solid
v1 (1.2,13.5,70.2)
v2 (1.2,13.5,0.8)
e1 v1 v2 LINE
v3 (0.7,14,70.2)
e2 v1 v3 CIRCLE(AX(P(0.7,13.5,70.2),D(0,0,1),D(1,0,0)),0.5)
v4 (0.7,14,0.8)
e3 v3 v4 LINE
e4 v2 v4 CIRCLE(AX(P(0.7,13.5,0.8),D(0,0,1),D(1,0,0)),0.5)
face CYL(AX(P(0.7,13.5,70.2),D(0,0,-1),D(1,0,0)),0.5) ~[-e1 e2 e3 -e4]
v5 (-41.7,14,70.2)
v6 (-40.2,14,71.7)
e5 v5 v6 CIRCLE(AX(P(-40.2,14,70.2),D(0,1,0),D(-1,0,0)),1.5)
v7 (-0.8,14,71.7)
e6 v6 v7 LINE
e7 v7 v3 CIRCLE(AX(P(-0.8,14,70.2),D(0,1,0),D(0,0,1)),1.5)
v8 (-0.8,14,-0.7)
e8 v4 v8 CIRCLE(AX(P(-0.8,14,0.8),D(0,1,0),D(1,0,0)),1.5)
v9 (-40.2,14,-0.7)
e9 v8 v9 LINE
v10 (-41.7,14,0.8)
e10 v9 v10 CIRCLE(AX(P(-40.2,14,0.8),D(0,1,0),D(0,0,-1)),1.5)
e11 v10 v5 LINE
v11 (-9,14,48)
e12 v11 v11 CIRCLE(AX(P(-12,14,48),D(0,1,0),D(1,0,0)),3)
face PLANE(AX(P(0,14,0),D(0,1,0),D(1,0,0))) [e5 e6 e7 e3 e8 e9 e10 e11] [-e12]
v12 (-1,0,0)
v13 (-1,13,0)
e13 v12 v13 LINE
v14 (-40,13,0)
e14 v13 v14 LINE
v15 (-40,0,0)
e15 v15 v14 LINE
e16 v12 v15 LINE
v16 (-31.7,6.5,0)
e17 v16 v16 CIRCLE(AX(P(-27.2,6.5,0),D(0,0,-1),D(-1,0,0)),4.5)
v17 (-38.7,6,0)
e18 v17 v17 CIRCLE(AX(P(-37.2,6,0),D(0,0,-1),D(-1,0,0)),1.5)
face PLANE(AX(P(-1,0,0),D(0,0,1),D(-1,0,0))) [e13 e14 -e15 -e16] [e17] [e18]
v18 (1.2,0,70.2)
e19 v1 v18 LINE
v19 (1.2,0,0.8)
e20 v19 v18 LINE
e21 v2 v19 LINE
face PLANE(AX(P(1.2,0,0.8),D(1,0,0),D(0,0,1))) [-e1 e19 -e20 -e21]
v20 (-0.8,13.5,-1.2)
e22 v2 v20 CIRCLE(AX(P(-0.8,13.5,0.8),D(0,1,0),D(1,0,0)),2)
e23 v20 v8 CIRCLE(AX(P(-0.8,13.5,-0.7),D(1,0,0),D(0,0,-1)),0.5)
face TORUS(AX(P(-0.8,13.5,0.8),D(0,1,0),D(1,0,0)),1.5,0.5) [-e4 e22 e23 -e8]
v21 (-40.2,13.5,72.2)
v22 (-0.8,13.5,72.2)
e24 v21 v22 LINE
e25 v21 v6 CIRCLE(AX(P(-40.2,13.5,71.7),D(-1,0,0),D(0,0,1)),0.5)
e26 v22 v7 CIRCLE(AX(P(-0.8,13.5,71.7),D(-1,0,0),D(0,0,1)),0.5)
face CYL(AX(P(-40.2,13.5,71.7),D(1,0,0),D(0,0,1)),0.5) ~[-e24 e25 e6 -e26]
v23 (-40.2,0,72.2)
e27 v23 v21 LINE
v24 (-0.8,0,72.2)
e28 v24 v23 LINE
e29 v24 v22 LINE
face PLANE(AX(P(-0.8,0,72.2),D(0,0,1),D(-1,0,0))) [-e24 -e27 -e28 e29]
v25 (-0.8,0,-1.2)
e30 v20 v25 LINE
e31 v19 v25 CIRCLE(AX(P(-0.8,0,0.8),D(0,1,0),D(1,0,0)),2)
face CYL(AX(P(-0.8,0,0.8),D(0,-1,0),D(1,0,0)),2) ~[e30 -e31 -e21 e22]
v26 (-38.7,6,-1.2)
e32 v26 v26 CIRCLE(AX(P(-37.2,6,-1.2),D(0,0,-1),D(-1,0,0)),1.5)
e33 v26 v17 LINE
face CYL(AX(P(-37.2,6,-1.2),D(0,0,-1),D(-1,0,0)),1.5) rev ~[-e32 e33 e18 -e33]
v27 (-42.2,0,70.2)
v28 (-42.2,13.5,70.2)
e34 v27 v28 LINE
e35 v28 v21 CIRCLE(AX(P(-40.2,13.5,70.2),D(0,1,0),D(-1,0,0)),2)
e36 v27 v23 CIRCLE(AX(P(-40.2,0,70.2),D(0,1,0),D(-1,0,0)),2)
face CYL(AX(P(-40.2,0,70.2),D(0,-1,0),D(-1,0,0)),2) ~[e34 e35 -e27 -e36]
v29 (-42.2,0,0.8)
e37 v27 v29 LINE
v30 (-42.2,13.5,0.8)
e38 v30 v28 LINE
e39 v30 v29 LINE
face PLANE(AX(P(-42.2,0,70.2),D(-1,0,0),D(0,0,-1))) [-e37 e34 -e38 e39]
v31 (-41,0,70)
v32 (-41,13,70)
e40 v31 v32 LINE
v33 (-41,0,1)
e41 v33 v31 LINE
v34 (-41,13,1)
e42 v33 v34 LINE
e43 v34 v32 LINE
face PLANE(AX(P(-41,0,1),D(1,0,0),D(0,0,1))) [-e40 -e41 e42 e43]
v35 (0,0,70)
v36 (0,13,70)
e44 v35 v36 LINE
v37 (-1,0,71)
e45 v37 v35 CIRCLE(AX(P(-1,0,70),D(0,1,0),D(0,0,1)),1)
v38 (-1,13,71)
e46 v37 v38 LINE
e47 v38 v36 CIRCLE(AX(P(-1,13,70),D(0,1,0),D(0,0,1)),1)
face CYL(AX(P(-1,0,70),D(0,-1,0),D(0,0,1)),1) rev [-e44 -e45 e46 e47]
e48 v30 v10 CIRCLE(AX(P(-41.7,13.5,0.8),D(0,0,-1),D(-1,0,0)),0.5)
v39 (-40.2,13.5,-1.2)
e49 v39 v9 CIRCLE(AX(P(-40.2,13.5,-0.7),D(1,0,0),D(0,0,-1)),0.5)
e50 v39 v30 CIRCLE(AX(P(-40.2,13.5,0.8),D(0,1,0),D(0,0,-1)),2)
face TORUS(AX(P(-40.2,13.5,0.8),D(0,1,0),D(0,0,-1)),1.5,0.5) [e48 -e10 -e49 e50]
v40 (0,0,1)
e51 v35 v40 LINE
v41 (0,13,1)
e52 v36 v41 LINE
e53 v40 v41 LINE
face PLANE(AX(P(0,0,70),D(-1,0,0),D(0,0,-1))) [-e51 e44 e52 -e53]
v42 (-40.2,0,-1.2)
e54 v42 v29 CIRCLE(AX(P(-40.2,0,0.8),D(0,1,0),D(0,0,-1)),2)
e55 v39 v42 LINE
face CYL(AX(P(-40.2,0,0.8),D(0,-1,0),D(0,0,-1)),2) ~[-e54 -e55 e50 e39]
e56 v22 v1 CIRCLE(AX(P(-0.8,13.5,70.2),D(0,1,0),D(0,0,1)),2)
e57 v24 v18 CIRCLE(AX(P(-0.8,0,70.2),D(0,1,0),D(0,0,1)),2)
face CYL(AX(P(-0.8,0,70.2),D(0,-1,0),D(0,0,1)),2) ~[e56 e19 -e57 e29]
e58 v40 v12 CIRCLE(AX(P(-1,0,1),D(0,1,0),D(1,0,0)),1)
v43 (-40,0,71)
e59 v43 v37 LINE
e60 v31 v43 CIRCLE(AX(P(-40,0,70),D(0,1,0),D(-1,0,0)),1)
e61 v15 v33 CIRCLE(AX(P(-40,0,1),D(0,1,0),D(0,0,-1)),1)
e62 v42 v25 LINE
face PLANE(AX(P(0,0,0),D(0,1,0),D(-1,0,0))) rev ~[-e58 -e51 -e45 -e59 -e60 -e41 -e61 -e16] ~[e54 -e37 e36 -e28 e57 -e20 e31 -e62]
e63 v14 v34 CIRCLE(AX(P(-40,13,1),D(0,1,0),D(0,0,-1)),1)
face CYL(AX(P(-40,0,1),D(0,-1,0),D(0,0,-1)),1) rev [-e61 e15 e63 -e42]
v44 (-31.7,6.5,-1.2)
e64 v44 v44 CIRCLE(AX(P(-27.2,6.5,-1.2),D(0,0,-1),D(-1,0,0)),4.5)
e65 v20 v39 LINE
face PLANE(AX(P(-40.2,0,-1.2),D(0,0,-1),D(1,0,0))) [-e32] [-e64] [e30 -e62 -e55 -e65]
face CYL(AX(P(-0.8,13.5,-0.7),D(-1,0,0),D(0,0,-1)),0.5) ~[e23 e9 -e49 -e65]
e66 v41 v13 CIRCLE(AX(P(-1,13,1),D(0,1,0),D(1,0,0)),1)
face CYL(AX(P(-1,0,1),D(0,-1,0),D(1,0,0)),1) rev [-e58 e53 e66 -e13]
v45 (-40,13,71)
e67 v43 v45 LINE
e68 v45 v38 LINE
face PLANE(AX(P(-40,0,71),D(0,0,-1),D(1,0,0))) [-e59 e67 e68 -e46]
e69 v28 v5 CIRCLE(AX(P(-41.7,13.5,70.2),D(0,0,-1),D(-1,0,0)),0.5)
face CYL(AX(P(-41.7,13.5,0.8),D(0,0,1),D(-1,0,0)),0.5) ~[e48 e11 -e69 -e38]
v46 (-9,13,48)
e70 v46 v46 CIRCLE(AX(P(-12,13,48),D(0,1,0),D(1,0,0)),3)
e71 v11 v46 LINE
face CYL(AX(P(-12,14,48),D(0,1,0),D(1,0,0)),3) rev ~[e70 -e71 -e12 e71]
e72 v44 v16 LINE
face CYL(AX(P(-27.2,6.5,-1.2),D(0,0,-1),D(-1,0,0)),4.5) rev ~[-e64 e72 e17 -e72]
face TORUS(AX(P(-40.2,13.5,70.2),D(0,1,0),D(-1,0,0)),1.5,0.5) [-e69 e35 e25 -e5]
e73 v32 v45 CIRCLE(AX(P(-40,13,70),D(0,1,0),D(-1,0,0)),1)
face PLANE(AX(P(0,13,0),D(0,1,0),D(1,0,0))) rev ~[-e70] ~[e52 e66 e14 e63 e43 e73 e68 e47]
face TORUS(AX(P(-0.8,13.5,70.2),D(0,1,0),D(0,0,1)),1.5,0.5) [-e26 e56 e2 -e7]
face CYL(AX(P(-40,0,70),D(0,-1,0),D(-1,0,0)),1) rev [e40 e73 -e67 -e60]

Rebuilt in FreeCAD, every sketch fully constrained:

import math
import FreeCAD as App
import Part
import Sketcher

V = App.Vector


def edges_at(feature, points):
    """Names of the edges that pass closest to the given points."""
    edges = feature.Shape.Edges
    near = lambda p: min(range(len(edges)), key=lambda i: edges[i].distToShape(Part.Vertex(*p))[0])
    return sorted({f"Edge{near(p) + 1}" for p in points})

doc = App.newDocument("Part")
body = doc.addObject("PartDesign::Body", "Body")

sketch1 = body.newObject("Sketcher::SketchObject", "Sketch")
sketch1.AttachmentSupport = (doc.getObject("XZ_Plane"), [""])
sketch1.MapMode = "FlatFace"
sketch1.addGeometry(Part.LineSegment(V(-42.2, 0.8, 0), V(-42.2, 70.2, 0)), False)
sketch1.addGeometry(Part.ArcOfCircle(Part.Circle(V(-40.2, 70.2, 0), V(0, 0, 1), 2), math.radians(90), math.radians(180)), False)
sketch1.addGeometry(Part.LineSegment(V(-40.2, 72.2, 0), V(-0.8, 72.2, 0)), False)
sketch1.addGeometry(Part.ArcOfCircle(Part.Circle(V(-0.8, 70.2, 0), V(0, 0, 1), 2), math.radians(0), math.radians(90)), False)
sketch1.addGeometry(Part.LineSegment(V(1.2, 70.2, 0), V(1.2, 0.8, 0)), False)
sketch1.addGeometry(Part.ArcOfCircle(Part.Circle(V(-0.8, 0.8, 0), V(0, 0, 1), 2), math.radians(-90), math.radians(0)), False)
sketch1.addGeometry(Part.LineSegment(V(-0.8, -1.2, 0), V(-40.2, -1.2, 0)), False)
sketch1.addGeometry(Part.ArcOfCircle(Part.Circle(V(-40.2, 0.8, 0), V(0, 0, 1), 2), math.radians(180), math.radians(270)), False)
sketch1.addGeometry(Part.LineSegment(V(-40, 0, 0), V(-1, 0, 0)), False)
sketch1.addGeometry(Part.ArcOfCircle(Part.Circle(V(-1, 1, 0), V(0, 0, 1), 1), math.radians(-90), math.radians(0)), False)
sketch1.addGeometry(Part.LineSegment(V(0, 1, 0), V(0, 70, 0)), False)
sketch1.addGeometry(Part.ArcOfCircle(Part.Circle(V(-1, 70, 0), V(0, 0, 1), 1), math.radians(0), math.radians(90)), False)
sketch1.addGeometry(Part.LineSegment(V(-1, 71, 0), V(-40, 71, 0)), False)
sketch1.addGeometry(Part.ArcOfCircle(Part.Circle(V(-40, 70, 0), V(0, 0, 1), 1), math.radians(90), math.radians(180)), False)
sketch1.addGeometry(Part.LineSegment(V(-41, 70, 0), V(-41, 1, 0)), False)
sketch1.addGeometry(Part.ArcOfCircle(Part.Circle(V(-40, 1, 0), V(0, 0, 1), 1), math.radians(180), math.radians(270)), False)
sketch1.addConstraint(Sketcher.Constraint("Tangent", 0, 2, 1, 2))
sketch1.addConstraint(Sketcher.Constraint("Tangent", 1, 1, 2, 1))
sketch1.addConstraint(Sketcher.Constraint("Tangent", 2, 2, 3, 2))
sketch1.addConstraint(Sketcher.Constraint("Tangent", 3, 1, 4, 1))
sketch1.addConstraint(Sketcher.Constraint("Tangent", 4, 2, 5, 2))
sketch1.addConstraint(Sketcher.Constraint("Tangent", 5, 1, 6, 1))
sketch1.addConstraint(Sketcher.Constraint("Tangent", 6, 2, 7, 2))
sketch1.addConstraint(Sketcher.Constraint("Tangent", 7, 1, 0, 1))
sketch1.addConstraint(Sketcher.Constraint("Tangent", 8, 2, 9, 1))
sketch1.addConstraint(Sketcher.Constraint("Tangent", 9, 2, 10, 1))
sketch1.addConstraint(Sketcher.Constraint("Tangent", 10, 2, 11, 1))
sketch1.addConstraint(Sketcher.Constraint("Tangent", 11, 2, 12, 1))
sketch1.addConstraint(Sketcher.Constraint("Tangent", 12, 2, 13, 1))
sketch1.addConstraint(Sketcher.Constraint("Tangent", 13, 2, 14, 1))
sketch1.addConstraint(Sketcher.Constraint("Tangent", 14, 2, 15, 1))
sketch1.addConstraint(Sketcher.Constraint("Tangent", 15, 2, 8, 1))
sketch1.addConstraint(Sketcher.Constraint("Vertical", 0))
sketch1.addConstraint(Sketcher.Constraint("Horizontal", 2))
sketch1.addConstraint(Sketcher.Constraint("Vertical", 4))
sketch1.addConstraint(Sketcher.Constraint("Horizontal", 6))
sketch1.addConstraint(Sketcher.Constraint("Horizontal", 8))
sketch1.addConstraint(Sketcher.Constraint("Vertical", 10))
sketch1.addConstraint(Sketcher.Constraint("Horizontal", 12))
sketch1.addConstraint(Sketcher.Constraint("Vertical", 14))
sketch1.addConstraint(Sketcher.Constraint("Equal", 1, 3))
sketch1.addConstraint(Sketcher.Constraint("Equal", 3, 5))
sketch1.addConstraint(Sketcher.Constraint("Equal", 5, 7))
sketch1.addConstraint(Sketcher.Constraint("Equal", 9, 11))
sketch1.addConstraint(Sketcher.Constraint("Equal", 11, 13))
sketch1.addConstraint(Sketcher.Constraint("Equal", 13, 15))
sketch1.addConstraint(Sketcher.Constraint("PointOnObject", 8, 2, -1))
sketch1.addConstraint(Sketcher.Constraint("PointOnObject", 9, 2, -2))
sketch1.addConstraint(Sketcher.Constraint("Radius", 1, 2.0))
sketch1.addConstraint(Sketcher.Constraint("Radius", 9, 1.0))
sketch1.addConstraint(Sketcher.Constraint("DistanceY", -1, 1, 11, 2, 71.0))
sketch1.addConstraint(Sketcher.Constraint("DistanceX", 13, 2, -1, 1, 41.0))
sketch1.addConstraint(Sketcher.Constraint("DistanceX", -1, 1, 3, 1, 1.2))
sketch1.addConstraint(Sketcher.Constraint("DistanceY", 5, 1, -1, 1, 1.2))
sketch1.addConstraint(Sketcher.Constraint("DistanceY", 11, 2, 2, 2, 1.2))
sketch1.addConstraint(Sketcher.Constraint("DistanceX", 0, 2, 13, 2, 1.2))
pad1 = body.newObject("PartDesign::Pad", "Pad")
pad1.Profile = sketch1
pad1.Length = 13
pad1.Reversed = True

sketch2 = body.newObject("Sketcher::SketchObject", "Sketch001")
sketch2.AttachmentSupport = (doc.getObject("XZ_Plane"), [""])
sketch2.MapMode = "FlatFace"
sketch2.AttachmentOffset = App.Placement(V(0, 0, -13), App.Rotation())
sketch2.addGeometry(Part.ArcOfCircle(Part.Circle(V(-0.8, 70.2, 0), V(0, 0, 1), 2), math.radians(0), math.radians(90)), False)
sketch2.addGeometry(Part.LineSegment(V(1.2, 70.2, 0), V(1.2, 0.8, 0)), False)
sketch2.addGeometry(Part.ArcOfCircle(Part.Circle(V(-0.8, 0.8, 0), V(0, 0, 1), 2), math.radians(-90), math.radians(0)), False)
sketch2.addGeometry(Part.LineSegment(V(-0.8, -1.2, 0), V(-40.2, -1.2, 0)), False)
sketch2.addGeometry(Part.ArcOfCircle(Part.Circle(V(-40.2, 0.8, 0), V(0, 0, 1), 2), math.radians(180), math.radians(270)), False)
sketch2.addGeometry(Part.LineSegment(V(-42.2, 0.8, 0), V(-42.2, 70.2, 0)), False)
sketch2.addGeometry(Part.ArcOfCircle(Part.Circle(V(-40.2, 70.2, 0), V(0, 0, 1), 2), math.radians(90), math.radians(180)), False)
sketch2.addGeometry(Part.LineSegment(V(-40.2, 72.2, 0), V(-0.8, 72.2, 0)), False)
sketch2.addConstraint(Sketcher.Constraint("Tangent", 0, 1, 1, 1))
sketch2.addConstraint(Sketcher.Constraint("Tangent", 1, 2, 2, 2))
sketch2.addConstraint(Sketcher.Constraint("Tangent", 2, 1, 3, 1))
sketch2.addConstraint(Sketcher.Constraint("Tangent", 3, 2, 4, 2))
sketch2.addConstraint(Sketcher.Constraint("Tangent", 4, 1, 5, 1))
sketch2.addConstraint(Sketcher.Constraint("Tangent", 5, 2, 6, 2))
sketch2.addConstraint(Sketcher.Constraint("Tangent", 6, 1, 7, 1))
sketch2.addConstraint(Sketcher.Constraint("Tangent", 7, 2, 0, 2))
sketch2.addConstraint(Sketcher.Constraint("Vertical", 1))
sketch2.addConstraint(Sketcher.Constraint("Horizontal", 3))
sketch2.addConstraint(Sketcher.Constraint("Vertical", 5))
sketch2.addConstraint(Sketcher.Constraint("Horizontal", 7))
sketch2.addConstraint(Sketcher.Constraint("Equal", 0, 2))
sketch2.addConstraint(Sketcher.Constraint("Equal", 2, 4))
sketch2.addConstraint(Sketcher.Constraint("Equal", 4, 6))
sketch2.addConstraint(Sketcher.Constraint("Radius", 0, 2.0))
sketch2.addConstraint(Sketcher.Constraint("DistanceX", 3, 2, 3, 1, 39.4))
sketch2.addConstraint(Sketcher.Constraint("DistanceY", 1, 2, 1, 1, 69.4))
sketch2.addConstraint(Sketcher.Constraint("DistanceX", 0, 3, -1, 1, 0.8))
sketch2.addConstraint(Sketcher.Constraint("DistanceY", -1, 1, 0, 3, 70.2))
pad2 = body.newObject("PartDesign::Pad", "Pad001")
pad2.Profile = sketch2
pad2.Length = 1
pad2.Reversed = True
doc.recompute()

fillet = body.newObject("PartDesign::Fillet", "Fillet")
fillet.Base = (pad2, edges_at(pad2, [
    (0.614, 14, -0.614),
    (-20.5, 14, -1.2),
    (-41.614, 14, -0.614),
    (-42.2, 14, 35.5),
    (-41.614, 14, 71.614),
    (-20.5, 14, 72.2),
    (0.614, 14, 71.614),
    (1.2, 14, 35.5),
]))
fillet.Radius = 0.5

sketch3 = body.newObject("Sketcher::SketchObject", "Sketch002")
sketch3.AttachmentSupport = (doc.getObject("XZ_Plane"), [""])
sketch3.MapMode = "FlatFace"
sketch3.AttachmentOffset = App.Placement(V(0, 0, -14), App.Rotation())
sketch3.addGeometry(Part.Circle(V(-12, 48, 0), V(0, 0, 1), 3), False)
sketch3.addConstraint(Sketcher.Constraint("Diameter", 0, 6.0))
sketch3.addConstraint(Sketcher.Constraint("DistanceX", 0, 3, -1, 1, 12.0))
sketch3.addConstraint(Sketcher.Constraint("DistanceY", -1, 1, 0, 3, 48.0))
pocket1 = body.newObject("PartDesign::Pocket", "Pocket")
pocket1.Profile = sketch3
pocket1.Length = 1
pocket1.Reversed = True

sketch4 = body.newObject("Sketcher::SketchObject", "Sketch003")
sketch4.AttachmentSupport = (doc.getObject("XY_Plane"), [""])
sketch4.MapMode = "FlatFace"
sketch4.AttachmentOffset = App.Placement(V(0, 0, -1.2), App.Rotation())
sketch4.addGeometry(Part.Circle(V(-27.2, 6.5, 0), V(0, 0, 1), 4.5), False)
sketch4.addGeometry(Part.Circle(V(-37.2, 6, 0), V(0, 0, 1), 1.5), False)
sketch4.addConstraint(Sketcher.Constraint("Diameter", 0, 9.0))
sketch4.addConstraint(Sketcher.Constraint("Diameter", 1, 3.0))
sketch4.addConstraint(Sketcher.Constraint("DistanceY", -1, 1, 0, 3, 6.5))
sketch4.addConstraint(Sketcher.Constraint("DistanceY", -1, 1, 1, 3, 6.0))
sketch4.addConstraint(Sketcher.Constraint("DistanceX", 1, 3, 0, 3, 10.0))
sketch4.addConstraint(Sketcher.Constraint("DistanceX", 0, 3, -1, 1, 27.2))
pocket2 = body.newObject("PartDesign::Pocket", "Pocket001")
pocket2.Profile = sketch4
pocket2.Length = 5
pocket2.Reversed = True

doc.recompute()
